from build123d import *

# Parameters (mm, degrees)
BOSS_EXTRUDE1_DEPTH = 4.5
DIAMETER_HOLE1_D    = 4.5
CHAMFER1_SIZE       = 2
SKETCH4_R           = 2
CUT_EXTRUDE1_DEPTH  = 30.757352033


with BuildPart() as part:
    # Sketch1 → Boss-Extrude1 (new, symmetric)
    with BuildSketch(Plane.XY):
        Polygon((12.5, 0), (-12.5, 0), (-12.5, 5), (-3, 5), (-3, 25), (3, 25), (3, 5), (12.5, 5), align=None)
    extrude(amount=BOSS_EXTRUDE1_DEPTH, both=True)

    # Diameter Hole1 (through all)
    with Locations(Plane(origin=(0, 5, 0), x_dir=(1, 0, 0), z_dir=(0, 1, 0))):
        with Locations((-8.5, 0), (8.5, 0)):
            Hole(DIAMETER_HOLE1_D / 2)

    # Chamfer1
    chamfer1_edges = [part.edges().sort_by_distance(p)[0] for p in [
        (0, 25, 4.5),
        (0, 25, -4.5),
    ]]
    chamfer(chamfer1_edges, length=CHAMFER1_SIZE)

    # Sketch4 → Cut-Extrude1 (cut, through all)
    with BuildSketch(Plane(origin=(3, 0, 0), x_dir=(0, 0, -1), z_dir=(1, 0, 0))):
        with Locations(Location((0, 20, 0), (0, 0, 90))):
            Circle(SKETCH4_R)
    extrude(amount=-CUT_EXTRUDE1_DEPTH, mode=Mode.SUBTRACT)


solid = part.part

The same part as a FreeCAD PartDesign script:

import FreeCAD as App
import Part
import Sketcher

V = App.Vector


def edges_at(feature, points):
    """Names of the edges that pass closest to the given points."""
    edges = feature.Shape.Edges
    near = lambda p: min(range(len(edges)), key=lambda i: edges[i].distToShape(Part.Vertex(*p))[0])
    return sorted({f"Edge{near(p) + 1}" for p in points})


def add_polygon(sketch, points):
    """Adds a closed chain of lines whose ends are joined by coincident constraints."""
    first, n = sketch.GeometryCount, len(points)
    for a, b in zip(points, points[1:] + points[:1]):
        sketch.addGeometry(Part.LineSegment(App.Vector(*a, 0), App.Vector(*b, 0)), False)
    for i in range(n):
        sketch.addConstraint(Sketcher.Constraint("Coincident", first + i, 2, first + (i + 1) % n, 1))

doc = App.newDocument("Part")
body = doc.addObject("PartDesign::Body", "Body")

# Sketch on XY plane
sketch1 = body.newObject("Sketcher::SketchObject", "Sketch")
sketch1.AttachmentSupport = (doc.getObject("XY_Plane"), [""])
sketch1.MapMode = "FlatFace"
add_polygon(sketch1, [(-12.5, 0), (12.5, 0), (12.5, 5), (3, 5), (3, 25), (-3, 25), (-3, 5), (-12.5, 5)])  # lines 0-7
sketch1.addConstraint(Sketcher.Constraint("Horizontal", 0))
sketch1.addConstraint(Sketcher.Constraint("Vertical", 1))
sketch1.addConstraint(Sketcher.Constraint("Horizontal", 2))
sketch1.addConstraint(Sketcher.Constraint("Vertical", 3))
sketch1.addConstraint(Sketcher.Constraint("Horizontal", 4))
sketch1.addConstraint(Sketcher.Constraint("Vertical", 5))
sketch1.addConstraint(Sketcher.Constraint("Horizontal", 6))
sketch1.addConstraint(Sketcher.Constraint("Vertical", 7))
sketch1.addConstraint(Sketcher.Constraint("Symmetric", 0, 2, 7, 2, -1, 1))
sketch1.addConstraint(Sketcher.Constraint("Symmetric", 2, 2, 5, 2, -2))
sketch1.addConstraint(Sketcher.Constraint("DistanceX", 0, 1, 0, 2, 25.0))
sketch1.addConstraint(Sketcher.Constraint("DistanceX", 4, 2, 4, 1, 6.0))
sketch1.addConstraint(Sketcher.Constraint("DistanceY", 1, 1, 1, 2, 5.0))
sketch1.addConstraint(Sketcher.Constraint("DistanceY", 3, 1, 3, 2, 20.0))
pad1 = body.newObject("PartDesign::Pad", "Pad")
pad1.Profile = sketch1
pad1.Length = 9
pad1.Midplane = True

# Sketch on XZ plane
sketch2 = body.newObject("Sketcher::SketchObject", "Sketch001")
sketch2.AttachmentSupport = (doc.getObject("XZ_Plane"), [""])
sketch2.MapMode = "FlatFace"
sketch2.AttachmentOffset = App.Placement(V(0, 0, -5), App.Rotation())
sketch2.addGeometry(Part.Circle(V(-8.5, 0, 0), V(0, 0, 1), 2.25), False)
sketch2.addGeometry(Part.Circle(V(8.5, 0, 0), V(0, 0, 1), 2.25), False)
sketch2.addConstraint(Sketcher.Constraint("Equal", 0, 1))
sketch2.addConstraint(Sketcher.Constraint("Symmetric", 0, 3, 1, 3, -1, 1))
sketch2.addConstraint(Sketcher.Constraint("PointOnObject", 0, 3, -1))
sketch2.addConstraint(Sketcher.Constraint("Diameter", 0, 4.5))
sketch2.addConstraint(Sketcher.Constraint("DistanceX", 0, 3, 1, 3, 17.0))
doc.recompute()
hole = body.newObject("PartDesign::Hole", "Hole")
hole.Profile = sketch2
hole.ThreadType = "None"
hole.Diameter = 4.5
hole.DepthType = "ThroughAll"
hole.Reversed = True
doc.recompute()

chamfer = body.newObject("PartDesign::Chamfer", "Chamfer")
chamfer.Base = (hole, edges_at(hole, [(0, 25, 4.5), (0, 25, -4.5)]))
chamfer.Size = 2

# Sketch on YZ plane
sketch3 = body.newObject("Sketcher::SketchObject", "Sketch002")
sketch3.AttachmentSupport = (doc.getObject("YZ_Plane"), [""])
sketch3.MapMode = "FlatFace"
sketch3.AttachmentOffset = App.Placement(V(0, 0, 3), App.Rotation())
sketch3.addGeometry(Part.Circle(V(20, 0, 0), V(0, 0, 1), 2), False)
sketch3.addConstraint(Sketcher.Constraint("PointOnObject", 0, 3, -1))
sketch3.addConstraint(Sketcher.Constraint("Diameter", 0, 4.0))
sketch3.addConstraint(Sketcher.Constraint("DistanceX", -1, 1, 0, 3, 20.0))
pocket1 = body.newObject("PartDesign::Pocket", "Pocket")
pocket1.Profile = sketch3
pocket1.Type = "ThroughAll"

doc.recompute()
